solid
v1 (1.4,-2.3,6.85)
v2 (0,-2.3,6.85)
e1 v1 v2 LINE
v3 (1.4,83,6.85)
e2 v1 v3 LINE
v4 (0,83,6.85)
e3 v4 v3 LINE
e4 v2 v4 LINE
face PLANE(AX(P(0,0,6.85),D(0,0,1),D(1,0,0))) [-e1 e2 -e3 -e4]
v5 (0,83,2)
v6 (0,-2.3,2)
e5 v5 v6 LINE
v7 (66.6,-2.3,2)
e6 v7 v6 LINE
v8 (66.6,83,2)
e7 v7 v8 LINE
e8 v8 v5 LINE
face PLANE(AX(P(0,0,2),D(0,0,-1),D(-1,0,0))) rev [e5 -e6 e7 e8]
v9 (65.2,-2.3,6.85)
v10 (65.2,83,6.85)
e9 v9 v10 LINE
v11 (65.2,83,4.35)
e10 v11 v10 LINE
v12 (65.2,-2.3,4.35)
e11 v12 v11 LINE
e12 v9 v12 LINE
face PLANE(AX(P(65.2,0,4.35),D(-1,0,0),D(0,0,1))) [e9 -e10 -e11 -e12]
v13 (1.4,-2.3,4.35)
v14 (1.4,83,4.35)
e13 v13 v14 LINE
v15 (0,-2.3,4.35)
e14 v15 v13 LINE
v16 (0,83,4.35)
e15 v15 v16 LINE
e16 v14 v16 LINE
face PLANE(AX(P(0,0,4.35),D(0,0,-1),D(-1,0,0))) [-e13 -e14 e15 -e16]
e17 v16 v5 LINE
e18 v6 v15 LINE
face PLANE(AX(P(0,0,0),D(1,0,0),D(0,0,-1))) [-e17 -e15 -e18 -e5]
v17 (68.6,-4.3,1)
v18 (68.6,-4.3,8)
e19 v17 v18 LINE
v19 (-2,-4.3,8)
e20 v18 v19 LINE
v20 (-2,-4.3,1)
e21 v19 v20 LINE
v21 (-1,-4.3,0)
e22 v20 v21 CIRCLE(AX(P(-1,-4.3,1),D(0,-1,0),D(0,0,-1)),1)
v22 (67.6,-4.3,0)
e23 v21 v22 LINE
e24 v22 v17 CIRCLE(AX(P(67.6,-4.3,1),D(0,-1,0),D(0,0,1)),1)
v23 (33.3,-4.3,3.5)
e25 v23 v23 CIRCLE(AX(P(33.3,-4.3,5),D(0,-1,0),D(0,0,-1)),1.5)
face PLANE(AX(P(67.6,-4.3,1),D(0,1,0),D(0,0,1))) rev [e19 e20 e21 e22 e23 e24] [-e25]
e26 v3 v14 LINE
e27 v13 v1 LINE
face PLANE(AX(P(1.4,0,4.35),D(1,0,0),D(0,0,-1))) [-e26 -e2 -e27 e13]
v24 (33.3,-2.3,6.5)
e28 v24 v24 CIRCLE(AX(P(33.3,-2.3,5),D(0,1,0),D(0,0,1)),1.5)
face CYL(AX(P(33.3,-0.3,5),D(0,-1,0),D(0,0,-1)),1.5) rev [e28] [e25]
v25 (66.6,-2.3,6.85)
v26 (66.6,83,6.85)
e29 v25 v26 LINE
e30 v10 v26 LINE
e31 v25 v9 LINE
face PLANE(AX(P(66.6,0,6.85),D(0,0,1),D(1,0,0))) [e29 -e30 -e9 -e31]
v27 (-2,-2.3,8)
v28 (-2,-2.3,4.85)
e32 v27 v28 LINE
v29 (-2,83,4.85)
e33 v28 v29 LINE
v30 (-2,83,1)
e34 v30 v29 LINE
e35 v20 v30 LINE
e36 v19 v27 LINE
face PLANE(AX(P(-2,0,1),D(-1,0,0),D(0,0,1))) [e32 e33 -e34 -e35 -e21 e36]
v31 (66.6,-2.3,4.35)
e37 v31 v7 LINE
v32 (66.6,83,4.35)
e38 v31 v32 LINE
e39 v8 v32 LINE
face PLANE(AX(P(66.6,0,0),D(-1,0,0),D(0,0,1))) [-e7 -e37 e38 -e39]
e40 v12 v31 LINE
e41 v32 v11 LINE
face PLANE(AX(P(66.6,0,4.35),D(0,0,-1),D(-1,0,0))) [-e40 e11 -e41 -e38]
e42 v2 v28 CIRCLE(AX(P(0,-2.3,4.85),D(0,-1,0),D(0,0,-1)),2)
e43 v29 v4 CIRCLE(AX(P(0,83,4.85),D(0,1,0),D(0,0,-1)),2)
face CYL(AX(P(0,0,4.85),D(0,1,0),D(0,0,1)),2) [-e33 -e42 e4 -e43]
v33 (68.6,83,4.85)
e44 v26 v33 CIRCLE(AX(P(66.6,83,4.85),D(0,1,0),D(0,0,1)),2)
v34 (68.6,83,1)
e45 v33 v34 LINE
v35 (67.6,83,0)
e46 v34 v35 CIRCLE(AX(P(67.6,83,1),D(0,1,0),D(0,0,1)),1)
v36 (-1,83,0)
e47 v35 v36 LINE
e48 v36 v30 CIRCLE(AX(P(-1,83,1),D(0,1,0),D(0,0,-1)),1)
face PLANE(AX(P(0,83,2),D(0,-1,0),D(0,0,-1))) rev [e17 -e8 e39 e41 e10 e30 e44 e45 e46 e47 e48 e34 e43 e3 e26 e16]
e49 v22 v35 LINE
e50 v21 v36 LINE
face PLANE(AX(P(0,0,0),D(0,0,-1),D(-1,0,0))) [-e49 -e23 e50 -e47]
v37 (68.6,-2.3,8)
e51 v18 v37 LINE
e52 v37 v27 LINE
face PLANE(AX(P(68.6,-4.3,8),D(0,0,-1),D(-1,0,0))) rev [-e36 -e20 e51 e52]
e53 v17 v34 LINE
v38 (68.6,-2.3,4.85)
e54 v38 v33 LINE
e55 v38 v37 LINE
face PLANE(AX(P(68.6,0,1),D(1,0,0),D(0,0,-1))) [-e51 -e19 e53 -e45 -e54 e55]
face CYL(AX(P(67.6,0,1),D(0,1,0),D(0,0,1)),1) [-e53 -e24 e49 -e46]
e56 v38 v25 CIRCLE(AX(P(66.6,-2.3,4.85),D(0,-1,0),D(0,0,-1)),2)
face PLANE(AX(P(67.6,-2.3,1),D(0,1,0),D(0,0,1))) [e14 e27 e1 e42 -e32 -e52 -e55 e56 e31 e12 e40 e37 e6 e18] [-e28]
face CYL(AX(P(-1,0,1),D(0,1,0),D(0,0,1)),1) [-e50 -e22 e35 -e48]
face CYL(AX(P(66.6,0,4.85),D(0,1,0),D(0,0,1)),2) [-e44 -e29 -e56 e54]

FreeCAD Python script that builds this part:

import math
import FreeCAD as App
import Part
import Sketcher
from FreeCAD import Vector
Q = App.Units.Quantity


def add_polygon(sketch, points):
    """Adds a closed chain of lines whose ends are joined by coincident constraints."""
    first, n = sketch.GeometryCount, len(points)
    for a, b in zip(points, points[1:] + points[:1]):
        sketch.addGeometry(Part.LineSegment(App.Vector(*a, 0), App.Vector(*b, 0)), False)
    for i in range(n):
        sketch.addConstraint(Sketcher.Constraint("Coincident", first + i, 2, first + (i + 1) % n, 1))

doc = App.newDocument("Part")
params = doc.addObject("Spreadsheet::Sheet", "Params")
for row, (alias, value) in enumerate([
    ("sketch1_height", "83 mm"),
    ("sketch1_width", "66.6 mm"),
    ("pad1_length", "2 mm"),
    ("sketch2_radius", "1 mm"),
    ("sketch2_radius2", "2 mm"),
    ("sketch2_width", "1.4 mm"),
    ("sketch2_height", "2.5 mm"),
    ("sketch2_height2", "3.85 mm"),
    ("pad2_length", "83 mm"),
    ("sketch3_radius", "1 mm"),
    ("sketch3_radius2", "2 mm"),
    ("sketch3_width", "68.6 mm"),
    ("sketch3_width2", "1.4 mm"),
    ("sketch3_height", "2.5 mm"),
    ("pad3_length", "2.3 mm"),
    ("sketch4_radius", "1 mm"),
    ("sketch4_height", "7 mm"),
    ("sketch4_width", "68.6 mm"),
    ("pad4_length", "2 mm"),
    ("sketch5_diameter", "3 mm"),
    ("pocket1_length", "4 mm"),
], start=1):
    params.set(f"A{row}", alias)
    params.set(f"B{row}", "=" + value)
    params.setAlias(f"B{row}", alias)

body = doc.addObject("PartDesign::Body", "Body")

# Sketch on XY plane
sketch1 = body.newObject("Sketcher::SketchObject", "Sketch")
sketch1.AttachmentSupport = (doc.getObject("XY_Plane"), [""])
sketch1.MapMode = "FlatFace"
add_polygon(sketch1, [(0, 83), (0, 0), (66.6, 0), (66.6, 83)])  # lines 0-3
sketch1.addConstraint(Sketcher.Constraint("Vertical", 0))
sketch1.addConstraint(Sketcher.Constraint("Horizontal", 1))
sketch1.addConstraint(Sketcher.Constraint("Vertical", 2))
sketch1.addConstraint(Sketcher.Constraint("Horizontal", 3))
sketch1.addConstraint(Sketcher.Constraint("Coincident", 0, 2, -1, 1))
sketch1.addConstraint(Sketcher.Constraint("DistanceY", 0, 2, 0, 1, Q("83 mm")))
sketch1.addConstraint(Sketcher.Constraint("DistanceX", 1, 1, 1, 2, Q("66.6 mm")))
sketch1.setExpression("Constraints[9]", "Params.sketch1_height")
sketch1.setExpression("Constraints[10]", "Params.sketch1_width")
pad1 = body.newObject("PartDesign::Pad", "Pad")
pad1.Profile = sketch1
pad1.setExpression("Length", "Params.pad1_length")

# Sketch on XZ plane
sketch2 = body.newObject("Sketcher::SketchObject", "Sketch001")
sketch2.AttachmentSupport = (doc.getObject("XZ_Plane"), [""])
sketch2.MapMode = "FlatFace"
sketch2.AttachmentOffset = App.Placement(Vector(0, 0, -83), App.Rotation())
sketch2.addGeometry(Part.LineSegment(Vector(0, 0, 0), Vector(-1, 0, 0)), False)
sketch2.addGeometry(Part.ArcOfCircle(Part.Circle(Vector(-1, 1, 0), Vector(0, 0, 1), 1), math.radians(-180), math.radians(-90)), False)
sketch2.addGeometry(Part.LineSegment(Vector(-2, 1, 0), Vector(-2, 4.85, 0)), False)
sketch2.addGeometry(Part.ArcOfCircle(Part.Circle(Vector(0, 4.85, 0), Vector(0, 0, 1), 2), math.radians(90), math.radians(180)), False)
sketch2.addGeometry(Part.LineSegment(Vector(0, 6.85, 0), Vector(1.4, 6.85, 0)), False)
sketch2.addGeometry(Part.LineSegment(Vector(1.4, 6.85, 0), Vector(1.4, 4.35, 0)), False)
sketch2.addGeometry(Part.LineSegment(Vector(1.4, 4.35, 0), Vector(0, 4.35, 0)), False)
sketch2.addGeometry(Part.LineSegment(Vector(0, 4.35, 0), Vector(0, 0, 0)), False)
sketch2.addGeometry(Part.LineSegment(Vector(65.2, 4.35, 0), Vector(65.2, 6.85, 0)), False)
sketch2.addGeometry(Part.LineSegment(Vector(65.2, 6.85, 0), Vector(66.6, 6.85, 0)), False)
sketch2.addGeometry(Part.ArcOfCircle(Part.Circle(Vector(66.6, 4.85, 0), Vector(0, 0, 1), 2), math.radians(0), math.radians(90)), False)
sketch2.addGeometry(Part.LineSegment(Vector(68.6, 4.85, 0), Vector(68.6, 1, 0)), False)
sketch2.addGeometry(Part.ArcOfCircle(Part.Circle(Vector(67.6, 1, 0), Vector(0, 0, 1), 1), math.radians(-90), math.radians(0)), False)
sketch2.addGeometry(Part.LineSegment(Vector(67.6, 0, 0), Vector(66.6, 0, 0)), False)
sketch2.addGeometry(Part.LineSegment(Vector(66.6, 0, 0), Vector(66.6, 4.35, 0)), False)
sketch2.addGeometry(Part.LineSegment(Vector(66.6, 4.35, 0), Vector(65.2, 4.35, 0)), False)
sketch2.addConstraint(Sketcher.Constraint("Tangent", 0, 2, 1, 2))
sketch2.addConstraint(Sketcher.Constraint("Tangent", 1, 1, 2, 1))
sketch2.addConstraint(Sketcher.Constraint("Tangent", 2, 2, 3, 2))
sketch2.addConstraint(Sketcher.Constraint("Tangent", 3, 1, 4, 1))
sketch2.addConstraint(Sketcher.Constraint("Coincident", 4, 2, 5, 1))
sketch2.addConstraint(Sketcher.Constraint("Coincident", 5, 2, 6, 1))
sketch2.addConstraint(Sketcher.Constraint("Coincident", 6, 2, 7, 1))
sketch2.addConstraint(Sketcher.Constraint("Coincident", 7, 2, 0, 1))
sketch2.addConstraint(Sketcher.Constraint("Coincident", 8, 2, 9, 1))
sketch2.addConstraint(Sketcher.Constraint("Tangent", 9, 2, 10, 2))
sketch2.addConstraint(Sketcher.Constraint("Tangent", 10, 1, 11, 1))
sketch2.addConstraint(Sketcher.Constraint("Tangent", 11, 2, 12, 2))
sketch2.addConstraint(Sketcher.Constraint("Tangent", 12, 1, 13, 1))
sketch2.addConstraint(Sketcher.Constraint("Coincident", 13, 2, 14, 1))
sketch2.addConstraint(Sketcher.Constraint("Coincident", 14, 2, 15, 1))
sketch2.addConstraint(Sketcher.Constraint("Coincident", 15, 2, 8, 1))
sketch2.addConstraint(Sketcher.Constraint("Horizontal", 0))
sketch2.addConstraint(Sketcher.Constraint("Vertical", 2))
sketch2.addConstraint(Sketcher.Constraint("Horizontal", 4))
sketch2.addConstraint(Sketcher.Constraint("Vertical", 5))
sketch2.addConstraint(Sketcher.Constraint("Horizontal", 6))
sketch2.addConstraint(Sketcher.Constraint("Vertical", 7))
sketch2.addConstraint(Sketcher.Constraint("Vertical", 8))
sketch2.addConstraint(Sketcher.Constraint("Horizontal", 9))
sketch2.addConstraint(Sketcher.Constraint("Vertical", 11))
sketch2.addConstraint(Sketcher.Constraint("Horizontal", 13))
sketch2.addConstraint(Sketcher.Constraint("Vertical", 14))
sketch2.addConstraint(Sketcher.Constraint("Horizontal", 15))
sketch2.addConstraint(Sketcher.Constraint("Coincident", 7, 2, -1, 1))
sketch2.addConstraint(Sketcher.Constraint("Equal", 3, 10))
sketch2.addConstraint(Sketcher.Constraint("Equal", 1, 12))
sketch2.addConstraint(Sketcher.Constraint("PointOnObject", 3, 3, -2))
sketch2.addConstraint(Sketcher.Constraint("PointOnObject", 12, 1, -1))
sketch2.addConstraint(Sketcher.Constraint("Horizontal", 3, 3, 10, 3))
sketch2.addConstraint(Sketcher.Constraint("Horizontal", 6, 2, 14, 2))
sketch2.addConstraint(Sketcher.Constraint("Vertical", 9, 2, 13, 2))
sketch2.addConstraint(Sketcher.Constraint("Equal", 6, 9))
sketch2.addConstraint(Sketcher.Constraint("Radius", 1, Q("1 mm")))
sketch2.addConstraint(Sketcher.Constraint("Radius", 3, Q("2 mm")))
sketch2.addConstraint(Sketcher.Constraint("DistanceX", 4, 1, 4, 2, Q("1.4 mm")))
sketch2.addConstraint(Sketcher.Constraint("DistanceY", 5, 2, 5, 1, Q("2.5 mm")))
sketch2.addConstraint(Sketcher.Constraint("DistanceY", 2, 1, 2, 2, Q("3.85 mm")))
sketch2.addConstraint(Sketcher.Constraint("DistanceX", -1, 1, 10, 3, Q("66.6 mm")))
sketch2.setExpression("Constraints[37]", "Params.sketch2_radius")
sketch2.setExpression("Constraints[38]", "Params.sketch2_radius2")
sketch2.setExpression("Constraints[39]", "Params.sketch2_width")
sketch2.setExpression("Constraints[40]", "Params.sketch2_height")
sketch2.setExpression("Constraints[41]", "Params.sketch2_height2")
pad2 = body.newObject("PartDesign::Pad", "Pad001")
pad2.Profile = sketch2
pad2.setExpression("Length", "Params.pad2_length")

# Sketch on XZ plane
sketch3 = body.newObject("Sketcher::SketchObject", "Sketch002")
sketch3.AttachmentSupport = (doc.getObject("XZ_Plane"), [""])
sketch3.MapMode = "FlatFace"
sketch3.addGeometry(Part.LineSegment(Vector(-1, 0, 0), Vector(67.6, 0, 0)), False)
sketch3.addGeometry(Part.ArcOfCircle(Part.Circle(Vector(67.6, 1, 0), Vector(0, 0, 1), 1), math.radians(-90), math.radians(0)), False)
sketch3.addGeometry(Part.LineSegment(Vector(68.6, 1, 0), Vector(68.6, 4.85, 0)), False)
sketch3.addGeometry(Part.ArcOfCircle(Part.Circle(Vector(66.6, 4.85, 0), Vector(0, 0, 1), 2), math.radians(0), math.radians(90)), False)
sketch3.addGeometry(Part.LineSegment(Vector(66.6, 6.85, 0), Vector(65.2, 6.85, 0)), False)
sketch3.addGeometry(Part.LineSegment(Vector(65.2, 6.85, 0), Vector(65.2, 4.35, 0)), False)
sketch3.addGeometry(Part.LineSegment(Vector(65.2, 4.35, 0), Vector(66.6, 4.35, 0)), False)
sketch3.addGeometry(Part.LineSegment(Vector(66.6, 4.35, 0), Vector(66.6, 2, 0)), False)
sketch3.addGeometry(Part.LineSegment(Vector(66.6, 2, 0), Vector(0, 2, 0)), False)
sketch3.addGeometry(Part.LineSegment(Vector(0, 2, 0), Vector(0, 4.35, 0)), False)
sketch3.addGeometry(Part.LineSegment(Vector(0, 4.35, 0), Vector(1.4, 4.35, 0)), False)
sketch3.addGeometry(Part.LineSegment(Vector(1.4, 4.35, 0), Vector(1.4, 6.85, 0)), False)
sketch3.addGeometry(Part.LineSegment(Vector(1.4, 6.85, 0), Vector(0, 6.85, 0)), False)
sketch3.addGeometry(Part.ArcOfCircle(Part.Circle(Vector(0, 4.85, 0), Vector(0, 0, 1), 2), math.radians(90), math.radians(180)), False)
sketch3.addGeometry(Part.LineSegment(Vector(-2, 4.85, 0), Vector(-2, 1, 0)), False)
sketch3.addGeometry(Part.ArcOfCircle(Part.Circle(Vector(-1, 1, 0), Vector(0, 0, 1), 1), math.radians(-180), math.radians(-90)), False)
sketch3.addConstraint(Sketcher.Constraint("Tangent", 0, 2, 1, 1))
sketch3.addConstraint(Sketcher.Constraint("Tangent", 1, 2, 2, 1))
sketch3.addConstraint(Sketcher.Constraint("Tangent", 2, 2, 3, 1))
sketch3.addConstraint(Sketcher.Constraint("Tangent", 3, 2, 4, 1))
sketch3.addConstraint(Sketcher.Constraint("Coincident", 4, 2, 5, 1))
sketch3.addConstraint(Sketcher.Constraint("Coincident", 5, 2, 6, 1))
sketch3.addConstraint(Sketcher.Constraint("Coincident", 6, 2, 7, 1))
sketch3.addConstraint(Sketcher.Constraint("Coincident", 7, 2, 8, 1))
sketch3.addConstraint(Sketcher.Constraint("Coincident", 8, 2, 9, 1))
sketch3.addConstraint(Sketcher.Constraint("Coincident", 9, 2, 10, 1))
sketch3.addConstraint(Sketcher.Constraint("Coincident", 10, 2, 11, 1))
sketch3.addConstraint(Sketcher.Constraint("Coincident", 11, 2, 12, 1))
sketch3.addConstraint(Sketcher.Constraint("Tangent", 12, 2, 13, 1))
sketch3.addConstraint(Sketcher.Constraint("Tangent", 13, 2, 14, 1))
sketch3.addConstraint(Sketcher.Constraint("Tangent", 14, 2, 15, 1))
sketch3.addConstraint(Sketcher.Constraint("Tangent", 15, 2, 0, 1))
sketch3.addConstraint(Sketcher.Constraint("Horizontal", 0))
sketch3.addConstraint(Sketcher.Constraint("Vertical", 2))
sketch3.addConstraint(Sketcher.Constraint("Horizontal", 4))
sketch3.addConstraint(Sketcher.Constraint("Vertical", 5))
sketch3.addConstraint(Sketcher.Constraint("Horizontal", 6))
sketch3.addConstraint(Sketcher.Constraint("Vertical", 7))
sketch3.addConstraint(Sketcher.Constraint("Horizontal", 8))
sketch3.addConstraint(Sketcher.Constraint("Vertical", 9))
sketch3.addConstraint(Sketcher.Constraint("Horizontal", 10))
sketch3.addConstraint(Sketcher.Constraint("Vertical", 11))
sketch3.addConstraint(Sketcher.Constraint("Horizontal", 12))
sketch3.addConstraint(Sketcher.Constraint("Vertical", 14))
sketch3.addConstraint(Sketcher.Constraint("Equal", 3, 13))
sketch3.addConstraint(Sketcher.Constraint("Equal", 1, 15))
sketch3.addConstraint(Sketcher.Constraint("PointOnObject", 13, 3, -2))
sketch3.addConstraint(Sketcher.Constraint("PointOnObject", 0, 2, -1))
sketch3.addConstraint(Sketcher.Constraint("PointOnObject", 8, 2, -2))
sketch3.addConstraint(Sketcher.Constraint("Horizontal", 3, 3, 13, 3))
sketch3.addConstraint(Sketcher.Constraint("Horizontal", 6, 2, 9, 2))
sketch3.addConstraint(Sketcher.Constraint("Vertical", 3, 2, 6, 2))
sketch3.addConstraint(Sketcher.Constraint("Equal", 6, 10))
sketch3.addConstraint(Sketcher.Constraint("Radius", 1, Q("1 mm")))
sketch3.addConstraint(Sketcher.Constraint("Radius", 3, Q("2 mm")))
sketch3.addConstraint(Sketcher.Constraint("DistanceX", 0, 1, 0, 2, Q("68.6 mm")))
sketch3.addConstraint(Sketcher.Constraint("DistanceX", 4, 2, 4, 1, Q("1.4 mm")))
sketch3.addConstraint(Sketcher.Constraint("DistanceY", 5, 2, 5, 1, Q("2.5 mm")))
sketch3.addConstraint(Sketcher.Constraint("DistanceY", -1, 1, 7, 2, Q("2 mm")))
sketch3.addConstraint(Sketcher.Constraint("DistanceY", 2, 1, 2, 2, Q("3.85 mm")))
sketch3.setExpression("Constraints[37]", "Params.sketch3_radius")
sketch3.setExpression("Constraints[38]", "Params.sketch3_radius2")
sketch3.setExpression("Constraints[39]", "Params.sketch3_width")
sketch3.setExpression("Constraints[40]", "Params.sketch3_width2")
sketch3.setExpression("Constraints[41]", "Params.sketch3_height")
pad3 = body.newObject("PartDesign::Pad", "Pad002")
pad3.Profile = sketch3
pad3.setExpression("Length", "Params.pad3_length")

# Sketch on XZ plane
sketch4 = body.newObject("Sketcher::SketchObject", "Sketch003")
sketch4.AttachmentSupport = (doc.getObject("XZ_Plane"), [""])
sketch4.MapMode = "FlatFace"
sketch4.AttachmentOffset = App.Placement(Vector(0, 0, 2.3), App.Rotation())
sketch4.addGeometry(Part.LineSegment(Vector(-1, 0, 0), Vector(67.6, 0, 0)), False)
sketch4.addGeometry(Part.ArcOfCircle(Part.Circle(Vector(67.6, 1, 0), Vector(0, 0, 1), 1), math.radians(-90), math.radians(0)), False)
sketch4.addGeometry(Part.LineSegment(Vector(68.6, 1, 0), Vector(68.6, 8, 0)), False)
sketch4.addGeometry(Part.LineSegment(Vector(68.6, 8, 0), Vector(-2, 8, 0)), False)
sketch4.addGeometry(Part.LineSegment(Vector(-2, 8, 0), Vector(-2, 1, 0)), False)
sketch4.addGeometry(Part.ArcOfCircle(Part.Circle(Vector(-1, 1, 0), Vector(0, 0, 1), 1), math.radians(-180), math.radians(-90)), False)
sketch4.addConstraint(Sketcher.Constraint("Tangent", 0, 2, 1, 1))
sketch4.addConstraint(Sketcher.Constraint("Tangent", 1, 2, 2, 1))
sketch4.addConstraint(Sketcher.Constraint("Coincident", 2, 2, 3, 1))
sketch4.addConstraint(Sketcher.Constraint("Coincident", 3, 2, 4, 1))
sketch4.addConstraint(Sketcher.Constraint("Tangent", 4, 2, 5, 1))
sketch4.addConstraint(Sketcher.Constraint("Tangent", 5, 2, 0, 1))
sketch4.addConstraint(Sketcher.Constraint("Horizontal", 0))
sketch4.addConstraint(Sketcher.Constraint("Vertical", 2))
sketch4.addConstraint(Sketcher.Constraint("Horizontal", 3))
sketch4.addConstraint(Sketcher.Constraint("Vertical", 4))
sketch4.addConstraint(Sketcher.Constraint("Equal", 1, 5))
sketch4.addConstraint(Sketcher.Constraint("PointOnObject", 0, 2, -1))
sketch4.addConstraint(Sketcher.Constraint("Radius", 1, Q("1 mm")))
sketch4.addConstraint(Sketcher.Constraint("DistanceY", 2, 1, 2, 2, Q("7 mm")))
sketch4.addConstraint(Sketcher.Constraint("DistanceX", 0, 1, 0, 2, Q("68.6 mm")))
sketch4.addConstraint(Sketcher.Constraint("DistanceX", 5, 3, -1, 1, Q("1 mm")))
sketch4.setExpression("Constraints[12]", "Params.sketch4_radius")
sketch4.setExpression("Constraints[13]", "Params.sketch4_height")
sketch4.setExpression("Constraints[14]", "Params.sketch4_width")
pad4 = body.newObject("PartDesign::Pad", "Pad003")
pad4.Profile = sketch4
pad4.setExpression("Length", "Params.pad4_length")

# Sketch on XZ plane
sketch5 = body.newObject("Sketcher::SketchObject", "Sketch004")
sketch5.AttachmentSupport = (doc.getObject("XZ_Plane"), [""])
sketch5.MapMode = "FlatFace"
sketch5.AttachmentOffset = App.Placement(Vector(0, 0, 4.3), App.Rotation())
sketch5.addGeometry(Part.Circle(Vector(33.3, 5, 0), Vector(0, 0, 1), 1.5), False)
sketch5.addConstraint(Sketcher.Constraint("Diameter", 0, Q("3 mm")))
sketch5.addConstraint(Sketcher.Constraint("DistanceY", -1, 1, 0, 3, Q("5 mm")))
sketch5.addConstraint(Sketcher.Constraint("DistanceX", -1, 1, 0, 3, Q("33.3 mm")))
sketch5.setExpression("Constraints[0]", "Params.sketch5_diameter")
pocket1 = body.newObject("PartDesign::Pocket", "Pocket")
pocket1.Profile = sketch5
pocket1.setExpression("Length", "Params.pocket1_length")

doc.recompute()
